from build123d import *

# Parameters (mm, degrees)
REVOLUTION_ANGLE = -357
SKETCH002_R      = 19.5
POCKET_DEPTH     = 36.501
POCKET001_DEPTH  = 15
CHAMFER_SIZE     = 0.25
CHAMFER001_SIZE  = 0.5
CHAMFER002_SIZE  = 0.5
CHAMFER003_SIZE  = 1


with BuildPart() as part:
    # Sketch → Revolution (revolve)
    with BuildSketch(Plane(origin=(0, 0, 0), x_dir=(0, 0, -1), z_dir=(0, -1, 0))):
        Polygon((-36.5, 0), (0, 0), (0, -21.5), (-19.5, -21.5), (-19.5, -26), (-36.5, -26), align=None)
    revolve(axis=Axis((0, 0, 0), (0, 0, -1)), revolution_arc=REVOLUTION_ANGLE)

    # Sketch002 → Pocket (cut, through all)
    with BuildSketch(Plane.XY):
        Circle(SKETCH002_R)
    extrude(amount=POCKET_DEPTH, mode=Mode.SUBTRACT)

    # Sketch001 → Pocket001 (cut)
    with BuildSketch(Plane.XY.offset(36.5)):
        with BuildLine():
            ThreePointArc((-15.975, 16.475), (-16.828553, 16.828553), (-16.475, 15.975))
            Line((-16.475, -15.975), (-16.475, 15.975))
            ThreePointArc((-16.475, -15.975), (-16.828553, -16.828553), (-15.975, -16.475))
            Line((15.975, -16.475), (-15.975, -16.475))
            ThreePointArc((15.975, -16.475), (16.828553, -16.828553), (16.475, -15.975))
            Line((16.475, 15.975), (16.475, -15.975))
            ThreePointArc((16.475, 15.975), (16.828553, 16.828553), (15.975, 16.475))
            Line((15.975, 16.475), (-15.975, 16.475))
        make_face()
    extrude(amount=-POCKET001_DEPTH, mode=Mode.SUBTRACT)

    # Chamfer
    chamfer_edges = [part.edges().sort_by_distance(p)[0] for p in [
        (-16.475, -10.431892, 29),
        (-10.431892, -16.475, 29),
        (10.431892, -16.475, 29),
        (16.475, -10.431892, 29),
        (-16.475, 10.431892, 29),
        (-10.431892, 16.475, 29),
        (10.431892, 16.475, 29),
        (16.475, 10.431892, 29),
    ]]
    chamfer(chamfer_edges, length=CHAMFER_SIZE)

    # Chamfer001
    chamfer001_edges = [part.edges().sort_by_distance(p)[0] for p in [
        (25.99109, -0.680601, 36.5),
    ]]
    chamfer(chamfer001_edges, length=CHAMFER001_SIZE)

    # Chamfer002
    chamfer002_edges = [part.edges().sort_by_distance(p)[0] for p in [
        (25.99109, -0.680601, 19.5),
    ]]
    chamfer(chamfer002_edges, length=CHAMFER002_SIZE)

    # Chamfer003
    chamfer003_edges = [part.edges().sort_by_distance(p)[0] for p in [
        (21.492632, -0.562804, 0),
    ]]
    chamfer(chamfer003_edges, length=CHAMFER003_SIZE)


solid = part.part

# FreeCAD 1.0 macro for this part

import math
import FreeCAD as App
import Part
import Sketcher
from FreeCAD import Vector
Q = App.Units.Quantity


def edges_at(feature, points):
    """Names of the edges that pass closest to the given points."""
    edges = feature.Shape.Edges
    near = lambda p: min(range(len(edges)), key=lambda i: edges[i].distToShape(Part.Vertex(*p))[0])
    return sorted({f"Edge{near(p) + 1}" for p in points})

doc = App.newDocument("Part")
body = doc.addObject("PartDesign::Body", "Body")

# Sketch on XZ plane
sketch1 = doc.addObject("Sketcher::SketchObject", "Sketch")
body.addObject(sketch1)
sketch1.AttachmentSupport = (doc.XZ_Plane, [""])
sketch1.MapMode = "FlatFace"
sketch1.addGeometry([
    Part.LineSegment(Vector(0, 0, 0), Vector(0, 36.5, 0)),  # 0
    Part.LineSegment(Vector(0, 36.5, 0), Vector(-26, 36.5, 0)),  # 1
    Part.LineSegment(Vector(-26, 36.5, 0), Vector(-26, 19.5, 0)),  # 2
    Part.LineSegment(Vector(-26, 19.5, 0), Vector(-21.5, 19.5, 0)),  # 3
    Part.LineSegment(Vector(-21.5, 19.5, 0), Vector(-21.5, 0, 0)),  # 4
    Part.LineSegment(Vector(-21.5, 0, 0), Vector(0, 0, 0)),  # 5
], False)
sketch1.addConstraint([
    Sketcher.Constraint("Coincident", 0, 2, 1, 1),
    Sketcher.Constraint("Coincident", 1, 2, 2, 1),
    Sketcher.Constraint("Coincident", 2, 2, 3, 1),
    Sketcher.Constraint("Coincident", 3, 2, 4, 1),
    Sketcher.Constraint("Coincident", 4, 2, 5, 1),
    Sketcher.Constraint("Coincident", 5, 2, 0, 1),
    Sketcher.Constraint("Vertical", 0),
    Sketcher.Constraint("Horizontal", 1),
    Sketcher.Constraint("Vertical", 2),
    Sketcher.Constraint("Horizontal", 3),
    Sketcher.Constraint("Vertical", 4),
    Sketcher.Constraint("Horizontal", 5),
    Sketcher.Constraint("Coincident", 5, 2, -1, 1),
    Sketcher.Constraint("DistanceX", 1, 2, 1, 1, Q("26 mm")),
    Sketcher.Constraint("DistanceY", 2, 2, 2, 1, Q("17 mm")),
    Sketcher.Constraint("DistanceX", 3, 1, 3, 2, Q("4.5 mm")),
    Sketcher.Constraint("DistanceY", 0, 1, 0, 2, Q("36.5 mm")),
])
revolution = doc.addObject("PartDesign::Revolution", "Revolution")
body.addObject(revolution)
revolution.Profile = sketch1
revolution.ReferenceAxis = (sketch1, ["V_Axis"])
revolution.Angle = 357

# Sketch on XY plane
sketch2 = doc.addObject("Sketcher::SketchObject", "Sketch001")
body.addObject(sketch2)
sketch2.AttachmentSupport = (doc.XY_Plane, [""])
sketch2.MapMode = "FlatFace"
sketch2.addGeometry(Part.Circle(Vector(0, 0, 0), Vector(0, 0, 1), 19.5), False)
sketch2.addConstraint([
    Sketcher.Constraint("Coincident", 0, 3, -1, 1),
    Sketcher.Constraint("Diameter", 0, Q("39 mm")),
])
pocket1 = doc.addObject("PartDesign::Pocket", "Pocket")
body.addObject(pocket1)
pocket1.Profile = sketch2
pocket1.Type = "ThroughAll"
pocket1.Reversed = True

# Sketch on XY plane
sketch3 = doc.addObject("Sketcher::SketchObject", "Sketch002")
body.addObject(sketch3)
sketch3.AttachmentSupport = (doc.XY_Plane, [""])
sketch3.MapMode = "FlatFace"
sketch3.AttachmentOffset = App.Placement(Vector(0, 0, 36.5), App.Rotation())
sketch3.addGeometry([
    Part.ArcOfCircle(Part.Circle(Vector(-16.475, 16.475, 0), Vector(0, 0, 1), 0.5), math.radians(0.000026), math.radians(269.999974)),  # 0
    Part.LineSegment(Vector(-16.475, 15.975, 0), Vector(-16.475, -15.975, 0)),  # 1
    Part.ArcOfCircle(Part.Circle(Vector(-16.475, -16.475, 0), Vector(0, 0, 1), 0.5), math.radians(90.000026), math.radians(359.999974)),  # 2
    Part.LineSegment(Vector(-15.975, -16.475, 0), Vector(15.975, -16.475, 0)),  # 3
    Part.ArcOfCircle(Part.Circle(Vector(16.475, -16.475, 0), Vector(0, 0, 1), 0.5), math.radians(-179.999974), math.radians(89.999974)),  # 4
    Part.LineSegment(Vector(16.475, -15.975, 0), Vector(16.475, 15.975, 0)),  # 5
    Part.ArcOfCircle(Part.Circle(Vector(16.475, 16.475, 0), Vector(0, 0, 1), 0.5), math.radians(-89.999974), math.radians(179.999974)),  # 6
    Part.LineSegment(Vector(15.975, 16.475, 0), Vector(-15.975, 16.475, 0)),  # 7
], False)
sketch3.addConstraint([
    Sketcher.Constraint("Coincident", 0, 2, 1, 1),
    Sketcher.Constraint("Coincident", 1, 2, 2, 1),
    Sketcher.Constraint("Coincident", 2, 2, 3, 1),
    Sketcher.Constraint("Coincident", 3, 2, 4, 1),
    Sketcher.Constraint("Coincident", 4, 2, 5, 1),
    Sketcher.Constraint("Coincident", 5, 2, 6, 1),
    Sketcher.Constraint("Coincident", 6, 2, 7, 1),
    Sketcher.Constraint("Coincident", 7, 2, 0, 1),
    Sketcher.Constraint("Vertical", 1),
    Sketcher.Constraint("Horizontal", 3),
    Sketcher.Constraint("Vertical", 5),
    Sketcher.Constraint("Horizontal", 7),
    Sketcher.Constraint("Equal", 0, 2),
    Sketcher.Constraint("Equal", 2, 4),
    Sketcher.Constraint("Equal", 4, 6),
    Sketcher.Constraint("Symmetric", 0, 3, 4, 3, -1, 1),
    Sketcher.Constraint("Symmetric", 2, 3, 6, 3, -1, 1),
    Sketcher.Constraint("Symmetric", 2, 3, 4, 3, -2),
    Sketcher.Constraint("Horizontal", 4, 3, 2, 2),
    Sketcher.Constraint("Horizontal", 0, 3, 6, 2),
    Sketcher.Constraint("Vertical", 2, 3, 0, 2),
    Sketcher.Constraint("Vertical", 6, 3, 4, 2),
    Sketcher.Constraint("Equal", 7, 1),
    Sketcher.Constraint("Radius", 0, Q("0.5 mm")),
    Sketcher.Constraint("DistanceX", 3, 1, 3, 2, Q("31.95 mm")),
])
pocket2 = doc.addObject("PartDesign::Pocket", "Pocket001")
body.addObject(pocket2)
pocket2.Profile = sketch3
pocket2.Length = 15
doc.recompute()

chamfer = doc.addObject("PartDesign::Chamfer", "Chamfer")
body.addObject(chamfer)
chamfer.Base = (pocket2, edges_at(pocket2, [
    (-16.475, -10.432, 29),
    (-10.432, -16.475, 29),
    (10.432, -16.475, 29),
    (16.475, -10.432, 29),
    (-16.475, 10.432, 29),
    (-10.432, 16.475, 29),
    (10.432, 16.475, 29),
    (16.475, 10.432, 29),
]))
chamfer.Size = 0.25
doc.recompute()

chamfer2 = doc.addObject("PartDesign::Chamfer", "Chamfer001")
body.addObject(chamfer2)
chamfer2.Base = (chamfer, edges_at(chamfer, [(25.991, -0.681, 36.5)]))
chamfer2.Size = 0.5
doc.recompute()

chamfer3 = doc.addObject("PartDesign::Chamfer", "Chamfer002")
body.addObject(chamfer3)
chamfer3.Base = (chamfer2, edges_at(chamfer2, [(25.991, -0.681, 19.5)]))
chamfer3.Size = 0.5
doc.recompute()

chamfer4 = doc.addObject("PartDesign::Chamfer", "Chamfer003")
body.addObject(chamfer4)
chamfer4.Base = (chamfer3, edges_at(chamfer3, [(21.493, -0.563, 0)]))
chamfer4.Size = 1

doc.recompute()
